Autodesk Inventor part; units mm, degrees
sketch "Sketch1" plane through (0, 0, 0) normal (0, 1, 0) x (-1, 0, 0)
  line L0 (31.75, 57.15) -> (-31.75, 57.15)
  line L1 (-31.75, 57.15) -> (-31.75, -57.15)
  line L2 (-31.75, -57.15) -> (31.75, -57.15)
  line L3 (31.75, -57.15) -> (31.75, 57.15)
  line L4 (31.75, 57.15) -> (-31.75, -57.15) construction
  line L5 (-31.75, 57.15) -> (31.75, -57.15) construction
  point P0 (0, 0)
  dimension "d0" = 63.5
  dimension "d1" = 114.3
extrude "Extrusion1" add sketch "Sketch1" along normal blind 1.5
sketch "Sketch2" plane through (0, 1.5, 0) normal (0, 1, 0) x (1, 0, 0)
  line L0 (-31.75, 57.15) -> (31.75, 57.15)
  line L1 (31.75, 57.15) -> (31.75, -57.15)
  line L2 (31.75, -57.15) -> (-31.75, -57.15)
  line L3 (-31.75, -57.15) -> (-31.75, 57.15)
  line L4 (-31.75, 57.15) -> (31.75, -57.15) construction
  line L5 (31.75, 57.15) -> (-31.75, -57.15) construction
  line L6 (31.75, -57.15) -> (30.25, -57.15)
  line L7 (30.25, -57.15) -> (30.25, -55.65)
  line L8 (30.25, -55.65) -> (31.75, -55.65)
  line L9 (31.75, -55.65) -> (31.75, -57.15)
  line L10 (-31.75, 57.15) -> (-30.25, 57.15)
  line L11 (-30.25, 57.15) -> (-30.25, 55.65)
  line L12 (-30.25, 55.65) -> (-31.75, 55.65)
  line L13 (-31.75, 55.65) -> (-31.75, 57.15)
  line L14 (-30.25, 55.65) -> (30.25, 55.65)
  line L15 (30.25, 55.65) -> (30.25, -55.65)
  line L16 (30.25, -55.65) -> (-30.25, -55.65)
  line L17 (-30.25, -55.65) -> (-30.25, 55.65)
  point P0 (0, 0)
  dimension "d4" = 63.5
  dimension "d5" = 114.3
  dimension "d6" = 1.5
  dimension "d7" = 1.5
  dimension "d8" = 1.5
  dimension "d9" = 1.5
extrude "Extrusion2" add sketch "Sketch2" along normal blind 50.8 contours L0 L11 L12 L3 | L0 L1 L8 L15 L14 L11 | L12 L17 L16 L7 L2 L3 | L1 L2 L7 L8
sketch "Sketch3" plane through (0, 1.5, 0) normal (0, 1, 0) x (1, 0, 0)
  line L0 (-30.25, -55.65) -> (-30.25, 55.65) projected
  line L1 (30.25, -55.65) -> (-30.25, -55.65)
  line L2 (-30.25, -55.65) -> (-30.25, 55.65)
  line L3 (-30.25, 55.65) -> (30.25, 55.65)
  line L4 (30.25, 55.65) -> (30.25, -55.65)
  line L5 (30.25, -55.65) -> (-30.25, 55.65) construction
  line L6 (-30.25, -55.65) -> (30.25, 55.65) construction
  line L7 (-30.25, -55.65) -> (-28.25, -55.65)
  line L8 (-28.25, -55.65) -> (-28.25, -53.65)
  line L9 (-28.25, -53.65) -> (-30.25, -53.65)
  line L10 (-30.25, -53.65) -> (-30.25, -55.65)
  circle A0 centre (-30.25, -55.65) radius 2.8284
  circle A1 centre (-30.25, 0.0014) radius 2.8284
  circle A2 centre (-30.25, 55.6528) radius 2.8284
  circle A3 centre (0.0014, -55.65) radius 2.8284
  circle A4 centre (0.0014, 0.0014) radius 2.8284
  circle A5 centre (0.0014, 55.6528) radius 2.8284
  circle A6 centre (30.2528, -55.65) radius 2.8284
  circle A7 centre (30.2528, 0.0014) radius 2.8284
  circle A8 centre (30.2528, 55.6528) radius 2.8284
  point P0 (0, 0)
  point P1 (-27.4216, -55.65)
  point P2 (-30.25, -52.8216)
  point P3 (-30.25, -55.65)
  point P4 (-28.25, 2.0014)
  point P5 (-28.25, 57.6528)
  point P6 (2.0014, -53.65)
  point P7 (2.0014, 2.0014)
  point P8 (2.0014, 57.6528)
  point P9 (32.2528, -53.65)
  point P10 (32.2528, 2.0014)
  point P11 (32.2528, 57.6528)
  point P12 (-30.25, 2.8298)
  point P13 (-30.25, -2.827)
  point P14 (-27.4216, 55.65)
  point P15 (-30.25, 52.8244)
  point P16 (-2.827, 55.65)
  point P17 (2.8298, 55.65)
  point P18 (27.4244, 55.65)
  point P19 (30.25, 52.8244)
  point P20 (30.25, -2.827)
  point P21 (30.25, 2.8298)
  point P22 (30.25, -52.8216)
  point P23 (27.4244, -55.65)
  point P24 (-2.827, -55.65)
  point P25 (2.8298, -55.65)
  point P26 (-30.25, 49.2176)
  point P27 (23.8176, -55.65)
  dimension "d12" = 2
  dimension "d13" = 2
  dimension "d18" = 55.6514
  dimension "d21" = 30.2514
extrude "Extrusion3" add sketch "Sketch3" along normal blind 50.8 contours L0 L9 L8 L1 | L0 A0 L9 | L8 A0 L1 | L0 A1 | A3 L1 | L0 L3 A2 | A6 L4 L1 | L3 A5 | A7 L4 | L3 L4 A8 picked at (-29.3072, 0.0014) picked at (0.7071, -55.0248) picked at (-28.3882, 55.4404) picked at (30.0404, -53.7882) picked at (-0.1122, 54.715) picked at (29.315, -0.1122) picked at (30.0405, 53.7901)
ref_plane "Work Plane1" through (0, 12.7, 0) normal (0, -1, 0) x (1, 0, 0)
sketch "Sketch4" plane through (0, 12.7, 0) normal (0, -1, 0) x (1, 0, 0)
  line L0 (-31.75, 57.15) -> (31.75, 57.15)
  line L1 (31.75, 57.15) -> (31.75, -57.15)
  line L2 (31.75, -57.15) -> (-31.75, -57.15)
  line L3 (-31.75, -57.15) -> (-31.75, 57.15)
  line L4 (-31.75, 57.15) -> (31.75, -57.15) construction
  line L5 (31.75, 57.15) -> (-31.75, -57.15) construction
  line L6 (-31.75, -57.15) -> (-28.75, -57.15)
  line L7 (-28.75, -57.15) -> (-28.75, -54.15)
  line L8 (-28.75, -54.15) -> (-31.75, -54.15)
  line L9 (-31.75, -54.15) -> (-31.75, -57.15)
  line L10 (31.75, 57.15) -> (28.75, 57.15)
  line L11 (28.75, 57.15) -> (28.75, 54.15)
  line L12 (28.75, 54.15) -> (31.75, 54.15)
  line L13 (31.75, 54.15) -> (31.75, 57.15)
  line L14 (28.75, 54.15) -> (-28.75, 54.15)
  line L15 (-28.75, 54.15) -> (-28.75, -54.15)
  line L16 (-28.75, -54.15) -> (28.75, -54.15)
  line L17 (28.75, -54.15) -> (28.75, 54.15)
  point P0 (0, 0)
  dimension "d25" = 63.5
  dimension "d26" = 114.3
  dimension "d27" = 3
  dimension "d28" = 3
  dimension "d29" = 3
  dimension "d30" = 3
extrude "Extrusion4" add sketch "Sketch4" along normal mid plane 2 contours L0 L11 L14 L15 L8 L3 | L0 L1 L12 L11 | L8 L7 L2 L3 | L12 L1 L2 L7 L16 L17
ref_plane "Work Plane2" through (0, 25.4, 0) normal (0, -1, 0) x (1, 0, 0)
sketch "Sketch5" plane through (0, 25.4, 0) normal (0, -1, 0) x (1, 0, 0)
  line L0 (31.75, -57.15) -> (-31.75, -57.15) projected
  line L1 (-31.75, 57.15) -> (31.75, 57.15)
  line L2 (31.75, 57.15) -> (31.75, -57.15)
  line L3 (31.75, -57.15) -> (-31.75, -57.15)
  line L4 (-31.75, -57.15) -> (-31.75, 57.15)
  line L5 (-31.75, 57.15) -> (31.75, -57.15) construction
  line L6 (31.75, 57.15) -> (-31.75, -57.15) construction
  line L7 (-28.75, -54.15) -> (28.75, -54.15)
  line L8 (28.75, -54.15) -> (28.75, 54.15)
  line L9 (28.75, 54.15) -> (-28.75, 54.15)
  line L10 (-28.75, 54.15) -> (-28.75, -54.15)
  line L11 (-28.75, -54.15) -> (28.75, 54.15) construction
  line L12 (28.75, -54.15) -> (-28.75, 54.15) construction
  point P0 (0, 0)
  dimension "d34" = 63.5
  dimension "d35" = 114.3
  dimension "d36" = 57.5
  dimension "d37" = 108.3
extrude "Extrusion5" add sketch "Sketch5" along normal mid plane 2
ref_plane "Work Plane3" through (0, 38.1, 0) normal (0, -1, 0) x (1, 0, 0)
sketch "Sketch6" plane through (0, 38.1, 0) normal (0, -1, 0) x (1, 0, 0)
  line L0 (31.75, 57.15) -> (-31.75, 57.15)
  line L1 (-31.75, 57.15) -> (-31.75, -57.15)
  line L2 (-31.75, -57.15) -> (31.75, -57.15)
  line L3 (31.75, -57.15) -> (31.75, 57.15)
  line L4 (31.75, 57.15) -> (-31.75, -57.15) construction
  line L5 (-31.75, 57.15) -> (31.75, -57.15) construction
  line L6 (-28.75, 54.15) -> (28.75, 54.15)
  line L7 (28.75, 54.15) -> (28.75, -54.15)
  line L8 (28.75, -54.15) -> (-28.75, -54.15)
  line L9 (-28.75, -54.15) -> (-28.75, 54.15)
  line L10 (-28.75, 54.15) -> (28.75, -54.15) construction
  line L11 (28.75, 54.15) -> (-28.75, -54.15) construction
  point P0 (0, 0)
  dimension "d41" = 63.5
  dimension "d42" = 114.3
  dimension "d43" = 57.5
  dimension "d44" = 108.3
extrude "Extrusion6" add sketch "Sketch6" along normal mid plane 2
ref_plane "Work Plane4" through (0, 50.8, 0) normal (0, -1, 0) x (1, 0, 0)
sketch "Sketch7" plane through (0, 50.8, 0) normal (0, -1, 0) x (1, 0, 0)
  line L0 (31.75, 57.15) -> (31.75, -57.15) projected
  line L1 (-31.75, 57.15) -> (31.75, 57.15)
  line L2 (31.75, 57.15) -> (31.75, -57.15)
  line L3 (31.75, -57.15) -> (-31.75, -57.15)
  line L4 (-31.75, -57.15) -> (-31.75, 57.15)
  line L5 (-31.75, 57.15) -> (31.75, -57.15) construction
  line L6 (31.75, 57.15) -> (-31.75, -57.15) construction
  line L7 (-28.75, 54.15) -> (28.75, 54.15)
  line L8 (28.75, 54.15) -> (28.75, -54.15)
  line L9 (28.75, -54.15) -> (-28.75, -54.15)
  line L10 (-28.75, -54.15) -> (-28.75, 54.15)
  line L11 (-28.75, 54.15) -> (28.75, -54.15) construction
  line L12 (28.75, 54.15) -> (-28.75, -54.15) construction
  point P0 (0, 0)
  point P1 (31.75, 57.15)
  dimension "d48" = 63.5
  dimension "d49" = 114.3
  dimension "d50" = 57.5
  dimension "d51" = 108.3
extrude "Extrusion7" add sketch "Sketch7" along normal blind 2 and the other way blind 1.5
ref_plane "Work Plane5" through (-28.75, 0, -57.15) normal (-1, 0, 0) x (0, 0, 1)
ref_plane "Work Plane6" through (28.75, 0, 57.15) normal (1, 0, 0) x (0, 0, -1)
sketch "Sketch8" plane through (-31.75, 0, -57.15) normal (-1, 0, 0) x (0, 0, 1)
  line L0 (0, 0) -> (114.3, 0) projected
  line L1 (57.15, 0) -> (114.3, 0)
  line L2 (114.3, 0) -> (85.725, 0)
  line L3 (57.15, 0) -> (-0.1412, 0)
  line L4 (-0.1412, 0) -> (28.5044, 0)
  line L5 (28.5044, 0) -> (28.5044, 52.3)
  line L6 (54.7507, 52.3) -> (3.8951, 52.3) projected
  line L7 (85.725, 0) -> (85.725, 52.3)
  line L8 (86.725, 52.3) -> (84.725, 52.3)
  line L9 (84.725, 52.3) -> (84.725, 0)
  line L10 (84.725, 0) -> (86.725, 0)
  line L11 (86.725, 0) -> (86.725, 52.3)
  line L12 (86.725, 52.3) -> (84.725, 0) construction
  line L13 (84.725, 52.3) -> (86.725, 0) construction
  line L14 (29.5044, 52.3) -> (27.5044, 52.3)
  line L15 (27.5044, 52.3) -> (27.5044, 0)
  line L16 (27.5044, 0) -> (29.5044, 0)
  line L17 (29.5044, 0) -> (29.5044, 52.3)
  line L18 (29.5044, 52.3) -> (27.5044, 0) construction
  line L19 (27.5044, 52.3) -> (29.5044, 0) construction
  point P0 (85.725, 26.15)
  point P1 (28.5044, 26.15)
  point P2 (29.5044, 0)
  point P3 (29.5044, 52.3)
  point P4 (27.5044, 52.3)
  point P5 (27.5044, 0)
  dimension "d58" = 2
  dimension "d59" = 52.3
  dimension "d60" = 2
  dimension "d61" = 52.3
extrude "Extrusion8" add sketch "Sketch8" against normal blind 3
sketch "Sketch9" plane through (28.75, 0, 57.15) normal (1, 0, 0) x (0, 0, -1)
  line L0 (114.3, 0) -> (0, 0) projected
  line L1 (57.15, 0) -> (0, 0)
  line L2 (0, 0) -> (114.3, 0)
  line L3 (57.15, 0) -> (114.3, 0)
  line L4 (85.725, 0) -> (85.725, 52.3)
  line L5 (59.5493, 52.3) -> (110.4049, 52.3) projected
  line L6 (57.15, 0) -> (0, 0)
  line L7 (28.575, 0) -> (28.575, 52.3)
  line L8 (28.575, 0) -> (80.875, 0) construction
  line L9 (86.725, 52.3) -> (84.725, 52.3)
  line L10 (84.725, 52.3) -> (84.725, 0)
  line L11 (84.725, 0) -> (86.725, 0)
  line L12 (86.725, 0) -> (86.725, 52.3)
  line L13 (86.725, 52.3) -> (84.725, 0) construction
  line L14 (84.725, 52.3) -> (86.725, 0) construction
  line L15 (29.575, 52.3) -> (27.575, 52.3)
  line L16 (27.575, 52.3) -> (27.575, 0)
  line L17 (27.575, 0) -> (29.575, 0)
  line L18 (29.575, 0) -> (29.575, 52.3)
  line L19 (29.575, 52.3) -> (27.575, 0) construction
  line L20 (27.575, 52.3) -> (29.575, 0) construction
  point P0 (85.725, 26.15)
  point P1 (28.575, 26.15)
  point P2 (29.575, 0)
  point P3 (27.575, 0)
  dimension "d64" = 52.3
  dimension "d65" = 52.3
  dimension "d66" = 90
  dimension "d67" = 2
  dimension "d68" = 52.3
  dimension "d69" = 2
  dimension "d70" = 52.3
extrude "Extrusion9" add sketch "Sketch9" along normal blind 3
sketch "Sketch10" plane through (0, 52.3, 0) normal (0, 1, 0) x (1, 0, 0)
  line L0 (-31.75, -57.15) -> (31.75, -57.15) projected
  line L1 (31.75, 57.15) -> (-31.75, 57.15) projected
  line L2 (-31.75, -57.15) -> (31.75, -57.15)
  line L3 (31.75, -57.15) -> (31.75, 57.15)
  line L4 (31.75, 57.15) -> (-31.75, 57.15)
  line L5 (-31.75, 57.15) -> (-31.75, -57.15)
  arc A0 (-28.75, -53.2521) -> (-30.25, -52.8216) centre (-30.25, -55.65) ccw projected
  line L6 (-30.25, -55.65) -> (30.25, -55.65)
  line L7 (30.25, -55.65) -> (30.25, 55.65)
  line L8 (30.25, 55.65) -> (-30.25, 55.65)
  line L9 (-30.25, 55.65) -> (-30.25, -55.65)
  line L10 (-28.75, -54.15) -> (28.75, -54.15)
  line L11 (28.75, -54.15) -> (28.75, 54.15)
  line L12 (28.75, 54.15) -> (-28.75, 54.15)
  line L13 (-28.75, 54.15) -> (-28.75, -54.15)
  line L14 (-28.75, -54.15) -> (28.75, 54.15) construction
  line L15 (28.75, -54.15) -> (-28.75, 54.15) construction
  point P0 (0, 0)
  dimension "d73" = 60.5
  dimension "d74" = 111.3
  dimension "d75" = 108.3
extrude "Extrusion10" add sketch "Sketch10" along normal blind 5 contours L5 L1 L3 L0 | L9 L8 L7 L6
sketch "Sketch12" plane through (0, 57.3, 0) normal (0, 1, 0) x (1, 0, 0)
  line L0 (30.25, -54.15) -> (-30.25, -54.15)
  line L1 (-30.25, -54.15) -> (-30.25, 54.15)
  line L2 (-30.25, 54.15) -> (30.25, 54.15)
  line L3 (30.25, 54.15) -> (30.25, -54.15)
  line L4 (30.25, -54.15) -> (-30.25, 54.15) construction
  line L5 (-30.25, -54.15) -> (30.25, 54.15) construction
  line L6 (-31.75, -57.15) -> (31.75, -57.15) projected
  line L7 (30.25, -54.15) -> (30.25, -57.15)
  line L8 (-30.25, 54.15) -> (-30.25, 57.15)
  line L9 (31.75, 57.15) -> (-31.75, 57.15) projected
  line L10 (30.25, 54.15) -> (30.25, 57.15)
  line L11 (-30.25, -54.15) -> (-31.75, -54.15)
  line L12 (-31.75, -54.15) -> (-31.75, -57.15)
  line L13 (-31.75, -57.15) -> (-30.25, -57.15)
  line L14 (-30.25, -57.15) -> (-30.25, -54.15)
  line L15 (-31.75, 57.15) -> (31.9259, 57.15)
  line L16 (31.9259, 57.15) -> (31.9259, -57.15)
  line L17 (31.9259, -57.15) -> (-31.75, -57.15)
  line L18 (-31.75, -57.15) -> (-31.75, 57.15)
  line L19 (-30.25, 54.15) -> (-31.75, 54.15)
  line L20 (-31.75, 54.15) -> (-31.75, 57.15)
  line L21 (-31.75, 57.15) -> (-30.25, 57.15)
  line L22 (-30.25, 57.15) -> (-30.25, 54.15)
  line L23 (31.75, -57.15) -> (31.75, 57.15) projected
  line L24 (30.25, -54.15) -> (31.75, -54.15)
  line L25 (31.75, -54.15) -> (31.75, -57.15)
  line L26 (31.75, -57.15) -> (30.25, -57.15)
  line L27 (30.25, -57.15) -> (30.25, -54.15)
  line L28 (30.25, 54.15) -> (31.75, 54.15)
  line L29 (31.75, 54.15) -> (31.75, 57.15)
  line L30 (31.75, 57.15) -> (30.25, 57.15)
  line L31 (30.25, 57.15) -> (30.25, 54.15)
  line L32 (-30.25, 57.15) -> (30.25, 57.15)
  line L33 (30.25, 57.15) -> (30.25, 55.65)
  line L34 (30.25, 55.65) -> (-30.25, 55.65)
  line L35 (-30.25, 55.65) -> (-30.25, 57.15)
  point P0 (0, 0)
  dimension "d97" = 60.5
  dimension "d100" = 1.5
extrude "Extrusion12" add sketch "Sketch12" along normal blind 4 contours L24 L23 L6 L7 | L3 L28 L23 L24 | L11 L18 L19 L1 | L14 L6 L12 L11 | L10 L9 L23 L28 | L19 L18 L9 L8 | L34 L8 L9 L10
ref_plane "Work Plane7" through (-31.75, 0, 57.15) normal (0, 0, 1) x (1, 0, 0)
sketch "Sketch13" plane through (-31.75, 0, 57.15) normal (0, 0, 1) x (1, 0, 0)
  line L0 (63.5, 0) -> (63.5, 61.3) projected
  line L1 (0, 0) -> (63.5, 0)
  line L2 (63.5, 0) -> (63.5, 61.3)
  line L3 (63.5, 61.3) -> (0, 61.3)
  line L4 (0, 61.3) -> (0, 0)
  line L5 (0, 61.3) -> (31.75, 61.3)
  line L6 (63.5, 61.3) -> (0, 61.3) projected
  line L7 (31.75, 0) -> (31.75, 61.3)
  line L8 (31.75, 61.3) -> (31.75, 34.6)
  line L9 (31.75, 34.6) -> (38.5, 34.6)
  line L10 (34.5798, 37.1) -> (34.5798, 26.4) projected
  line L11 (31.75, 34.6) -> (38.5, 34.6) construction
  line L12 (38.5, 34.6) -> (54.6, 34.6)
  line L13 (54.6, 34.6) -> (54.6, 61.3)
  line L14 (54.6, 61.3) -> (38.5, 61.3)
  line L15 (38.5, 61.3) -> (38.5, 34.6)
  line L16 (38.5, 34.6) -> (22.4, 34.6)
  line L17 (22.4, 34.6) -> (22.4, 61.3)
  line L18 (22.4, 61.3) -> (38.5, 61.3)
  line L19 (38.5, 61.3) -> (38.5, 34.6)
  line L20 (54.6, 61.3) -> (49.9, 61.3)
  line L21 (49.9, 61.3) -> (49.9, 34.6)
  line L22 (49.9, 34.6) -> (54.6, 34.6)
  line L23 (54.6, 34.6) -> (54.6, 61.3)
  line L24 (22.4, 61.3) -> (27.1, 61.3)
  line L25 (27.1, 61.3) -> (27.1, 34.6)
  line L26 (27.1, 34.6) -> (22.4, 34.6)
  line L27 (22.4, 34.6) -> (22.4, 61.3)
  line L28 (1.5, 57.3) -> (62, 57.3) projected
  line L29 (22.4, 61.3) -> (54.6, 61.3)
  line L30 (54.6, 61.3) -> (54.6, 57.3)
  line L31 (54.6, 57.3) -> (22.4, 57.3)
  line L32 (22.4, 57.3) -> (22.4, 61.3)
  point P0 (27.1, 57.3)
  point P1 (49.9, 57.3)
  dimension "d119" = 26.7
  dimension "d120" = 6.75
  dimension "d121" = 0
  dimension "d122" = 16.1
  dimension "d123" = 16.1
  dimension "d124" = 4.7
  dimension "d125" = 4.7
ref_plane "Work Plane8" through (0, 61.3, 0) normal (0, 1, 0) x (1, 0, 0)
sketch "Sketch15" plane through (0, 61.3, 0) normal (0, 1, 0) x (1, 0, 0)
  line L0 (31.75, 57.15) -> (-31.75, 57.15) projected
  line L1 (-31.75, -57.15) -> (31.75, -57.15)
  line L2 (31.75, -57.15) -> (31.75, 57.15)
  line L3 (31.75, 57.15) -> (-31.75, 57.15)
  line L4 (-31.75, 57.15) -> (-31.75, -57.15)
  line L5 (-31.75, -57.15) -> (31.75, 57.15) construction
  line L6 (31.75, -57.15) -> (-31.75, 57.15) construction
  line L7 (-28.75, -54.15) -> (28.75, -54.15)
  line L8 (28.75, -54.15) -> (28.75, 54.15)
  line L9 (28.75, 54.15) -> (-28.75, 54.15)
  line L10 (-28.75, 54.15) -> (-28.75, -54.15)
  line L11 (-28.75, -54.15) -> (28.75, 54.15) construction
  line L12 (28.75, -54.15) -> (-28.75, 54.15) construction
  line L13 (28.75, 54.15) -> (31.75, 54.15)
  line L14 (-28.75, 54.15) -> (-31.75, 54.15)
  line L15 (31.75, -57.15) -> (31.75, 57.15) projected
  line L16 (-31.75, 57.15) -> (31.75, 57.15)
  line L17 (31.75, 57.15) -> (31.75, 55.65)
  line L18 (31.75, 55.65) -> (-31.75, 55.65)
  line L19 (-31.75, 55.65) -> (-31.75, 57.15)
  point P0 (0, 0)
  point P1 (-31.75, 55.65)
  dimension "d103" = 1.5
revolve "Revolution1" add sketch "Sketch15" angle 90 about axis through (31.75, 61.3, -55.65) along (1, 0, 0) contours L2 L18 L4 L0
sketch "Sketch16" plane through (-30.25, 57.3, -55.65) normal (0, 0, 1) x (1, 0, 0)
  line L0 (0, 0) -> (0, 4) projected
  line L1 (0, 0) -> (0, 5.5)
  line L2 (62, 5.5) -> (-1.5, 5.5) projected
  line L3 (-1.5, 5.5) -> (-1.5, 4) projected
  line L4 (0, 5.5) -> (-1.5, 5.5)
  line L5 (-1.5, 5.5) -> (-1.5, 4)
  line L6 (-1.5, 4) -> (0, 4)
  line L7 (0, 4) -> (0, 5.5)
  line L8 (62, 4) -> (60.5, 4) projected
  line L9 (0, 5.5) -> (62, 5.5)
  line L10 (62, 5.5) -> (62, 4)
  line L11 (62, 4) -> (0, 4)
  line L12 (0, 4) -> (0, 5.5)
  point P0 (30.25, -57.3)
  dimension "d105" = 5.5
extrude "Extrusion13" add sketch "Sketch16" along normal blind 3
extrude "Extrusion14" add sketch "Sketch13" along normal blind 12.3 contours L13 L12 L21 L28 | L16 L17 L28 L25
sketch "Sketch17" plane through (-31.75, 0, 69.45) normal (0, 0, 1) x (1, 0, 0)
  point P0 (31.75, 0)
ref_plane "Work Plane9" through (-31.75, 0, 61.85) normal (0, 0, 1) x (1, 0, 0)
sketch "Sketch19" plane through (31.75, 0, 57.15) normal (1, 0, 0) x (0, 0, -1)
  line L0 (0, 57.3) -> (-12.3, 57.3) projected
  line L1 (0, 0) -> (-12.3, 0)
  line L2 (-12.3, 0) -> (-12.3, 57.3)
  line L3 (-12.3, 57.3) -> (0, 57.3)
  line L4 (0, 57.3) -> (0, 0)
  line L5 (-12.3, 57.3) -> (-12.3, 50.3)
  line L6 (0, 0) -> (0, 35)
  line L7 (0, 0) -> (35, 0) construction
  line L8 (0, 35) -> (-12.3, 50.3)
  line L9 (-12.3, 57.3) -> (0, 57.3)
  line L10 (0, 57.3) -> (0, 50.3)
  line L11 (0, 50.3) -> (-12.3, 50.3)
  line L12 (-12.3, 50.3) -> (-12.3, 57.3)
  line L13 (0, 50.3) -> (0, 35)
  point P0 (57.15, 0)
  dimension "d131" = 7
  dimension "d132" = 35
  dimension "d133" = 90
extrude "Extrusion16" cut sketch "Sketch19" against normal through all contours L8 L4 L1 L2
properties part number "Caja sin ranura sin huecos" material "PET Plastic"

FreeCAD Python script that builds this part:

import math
import FreeCAD as App
import Part
import Sketcher
from FreeCAD import Vector

doc = App.newDocument("Part")
body = doc.addObject("PartDesign::Body", "Body")

sketch1 = body.newObject("Sketcher::SketchObject", "Sketch")
sketch1.AttachmentSupport = (doc.getObject("XZ_Plane"), [""])
sketch1.MapMode = "FlatFace"
sketch1.addGeometry([
    Part.LineSegment(Vector(-31.75, -57.15, 0), Vector(-31.75, 57.15, 0)),
    Part.LineSegment(Vector(-31.75, 57.15, 0), Vector(31.75, 57.15, 0)),
    Part.LineSegment(Vector(31.75, 57.15, 0), Vector(31.75, -57.15, 0)),
    Part.LineSegment(Vector(31.75, -57.15, 0), Vector(-31.75, -57.15, 0)),
], False)
sketch1.addConstraint([
    Sketcher.Constraint("Coincident", 0, 2, 1, 1),
    Sketcher.Constraint("Coincident", 1, 2, 2, 1),
    Sketcher.Constraint("Coincident", 2, 2, 3, 1),
    Sketcher.Constraint("Coincident", 3, 2, 0, 1),
    Sketcher.Constraint("Vertical", 0),
    Sketcher.Constraint("Horizontal", 1),
    Sketcher.Constraint("Vertical", 2),
    Sketcher.Constraint("Horizontal", 3),
    Sketcher.Constraint("Symmetric", 0, 2, 2, 2, -1, 1),
    Sketcher.Constraint("DistanceX", 1, 1, 1, 2, 63.5),
    Sketcher.Constraint("DistanceY", 0, 1, 0, 2, 114.3),
])
pad1 = body.newObject("PartDesign::Pad", "Pad")
pad1.Profile = sketch1
pad1.Length = 1.5
pad1.Reversed = True

sketch2 = body.newObject("Sketcher::SketchObject", "Sketch001")
sketch2.AttachmentSupport = (doc.getObject("XZ_Plane"), [""])
sketch2.MapMode = "FlatFace"
sketch2.AttachmentOffset = App.Placement(Vector(0, 0, -1.5), App.Rotation())
sketch2.addGeometry([
    Part.LineSegment(Vector(-31.75, -57.15, 0), Vector(-31.75, 57.15, 0)),
    Part.LineSegment(Vector(-31.75, 57.15, 0), Vector(31.75, 57.15, 0)),
    Part.LineSegment(Vector(31.75, 57.15, 0), Vector(31.75, -57.15, 0)),
    Part.LineSegment(Vector(31.75, -57.15, 0), Vector(-31.75, -57.15, 0)),
    Part.LineSegment(Vector(30.25, -55.65, 0), Vector(30.25, 55.65, 0)),
    Part.LineSegment(Vector(30.25, 55.65, 0), Vector(-30.25, 55.65, 0)),
    Part.LineSegment(Vector(-30.25, 55.65, 0), Vector(-30.25, -55.65, 0)),
    Part.LineSegment(Vector(-30.25, -55.65, 0), Vector(30.25, -55.65, 0)),
], False)
sketch2.addConstraint([
    Sketcher.Constraint("Coincident", 0, 2, 1, 1),
    Sketcher.Constraint("Coincident", 1, 2, 2, 1),
    Sketcher.Constraint("Coincident", 2, 2, 3, 1),
    Sketcher.Constraint("Coincident", 3, 2, 0, 1),
    Sketcher.Constraint("Coincident", 4, 2, 5, 1),
    Sketcher.Constraint("Coincident", 5, 2, 6, 1),
    Sketcher.Constraint("Coincident", 6, 2, 7, 1),
    Sketcher.Constraint("Coincident", 7, 2, 4, 1),
    Sketcher.Constraint("Vertical", 0),
    Sketcher.Constraint("Horizontal", 1),
    Sketcher.Constraint("Vertical", 2),
    Sketcher.Constraint("Horizontal", 3),
    Sketcher.Constraint("Vertical", 4),
    Sketcher.Constraint("Horizontal", 5),
    Sketcher.Constraint("Vertical", 6),
    Sketcher.Constraint("Horizontal", 7),
    Sketcher.Constraint("Symmetric", 0, 2, 2, 2, -1, 1),
    Sketcher.Constraint("Symmetric", 4, 2, 6, 2, -1, 1),
    Sketcher.Constraint("DistanceX", 1, 1, 1, 2, 63.5),
    Sketcher.Constraint("DistanceY", 0, 1, 0, 2, 114.3),
    Sketcher.Constraint("DistanceX", 4, 2, 1, 2, 1.5),
    Sketcher.Constraint("DistanceY", 4, 2, 1, 2, 1.5),
])
pad2 = body.newObject("PartDesign::Pad", "Pad001")
pad2.Profile = sketch2
pad2.Length = 50.8
pad2.Reversed = True

sketch3 = body.newObject("Sketcher::SketchObject", "Sketch002")
sketch3.AttachmentSupport = (doc.getObject("XZ_Plane"), [""])
sketch3.MapMode = "FlatFace"
sketch3.AttachmentOffset = App.Placement(Vector(0, 0, -1.5), App.Rotation())
sketch3.addGeometry([
    Part.LineSegment(Vector(-30.25, 55.65, 0), Vector(-27.4216, 55.65, 0)),
    Part.ArcOfCircle(Part.Circle(Vector(-30.25, 55.65, 0), Vector(0, 0, 1), 2.8284), math.radians(-90), math.radians(0)),
    Part.LineSegment(Vector(-30.25, 52.8216, 0), Vector(-30.25, 55.65, 0)),
    Part.LineSegment(Vector(-30.25, -2.8298, 0), Vector(-30.25, 2.827, 0)),
    Part.ArcOfCircle(Part.Circle(Vector(-30.25, -0.0014, 0), Vector(0, 0, 1), 2.8284), math.radians(-90), math.radians(90)),
    Part.ArcOfCircle(Part.Circle(Vector(0.0014, 55.65, 0), Vector(0, 0, 1), 2.8284), math.radians(180), math.radians(360)),
    Part.LineSegment(Vector(-2.827, 55.65, 0), Vector(2.8298, 55.65, 0)),
    Part.LineSegment(Vector(-30.25, -55.65, 0), Vector(-30.25, -52.8244, 0)),
    Part.ArcOfCircle(Part.Circle(Vector(-30.25, -55.6528, 0), Vector(0, 0, 1), 2.8284), math.radians(0.05672), math.radians(90)),
    Part.LineSegment(Vector(-27.421601, -55.65, 0), Vector(-30.25, -55.65, 0)),
    Part.ArcOfCircle(Part.Circle(Vector(30.2528, 55.65, 0), Vector(0, 0, 1), 2.8284), math.radians(180), math.radians(269.94328)),
    Part.LineSegment(Vector(27.4244, 55.65, 0), Vector(30.25, 55.65, 0)),
    Part.LineSegment(Vector(30.25, 55.65, 0), Vector(30.25, 52.821601, 0)),
    Part.LineSegment(Vector(2.829799, -55.65, 0), Vector(-2.826999, -55.65, 0)),
    Part.ArcOfCircle(Part.Circle(Vector(0.0014, -55.6528, 0), Vector(0, 0, 1), 2.8284), math.radians(0.05672), math.radians(179.94328)),
    Part.ArcOfCircle(Part.Circle(Vector(30.2528, -0.0014, 0), Vector(0, 0, 1), 2.8284), math.radians(90.05672), math.radians(269.94328)),
    Part.LineSegment(Vector(30.25, 2.826999, 0), Vector(30.25, -2.829799, 0)),
    Part.LineSegment(Vector(30.25, -55.65, 0), Vector(27.424401, -55.65, 0)),
    Part.ArcOfCircle(Part.Circle(Vector(30.2528, -55.6528, 0), Vector(0, 0, 1), 2.8284), math.radians(90.05672), math.radians(179.94328)),
    Part.LineSegment(Vector(30.25, -52.824401, 0), Vector(30.25, -55.65, 0)),
], False)
sketch3.addConstraint([
    Sketcher.Constraint("Coincident", 0, 2, 1, 2),
    Sketcher.Constraint("Coincident", 1, 1, 2, 1),
    Sketcher.Constraint("Coincident", 2, 2, 0, 1),
    Sketcher.Constraint("Coincident", 3, 1, 4, 1),
    Sketcher.Constraint("Coincident", 4, 2, 3, 2),
    Sketcher.Constraint("Coincident", 5, 1, 6, 1),
    Sketcher.Constraint("Coincident", 6, 2, 5, 2),
    Sketcher.Constraint("Coincident", 7, 2, 8, 2),
    Sketcher.Constraint("Coincident", 8, 1, 9, 1),
    Sketcher.Constraint("Coincident", 9, 2, 7, 1),
    Sketcher.Constraint("Coincident", 10, 1, 11, 1),
    Sketcher.Constraint("Coincident", 11, 2, 12, 1),
    Sketcher.Constraint("Coincident", 12, 2, 10, 2),
    Sketcher.Constraint("Coincident", 13, 1, 14, 1),
    Sketcher.Constraint("Coincident", 14, 2, 13, 2),
    Sketcher.Constraint("Coincident", 15, 1, 16, 1),
    Sketcher.Constraint("Coincident", 16, 2, 15, 2),
    Sketcher.Constraint("Coincident", 17, 2, 18, 2),
    Sketcher.Constraint("Coincident", 18, 1, 19, 1),
    Sketcher.Constraint("Coincident", 19, 2, 17, 1),
    Sketcher.Constraint("Horizontal", 0),
    Sketcher.Constraint("Vertical", 2),
    Sketcher.Constraint("Vertical", 3),
    Sketcher.Constraint("Horizontal", 6),
    Sketcher.Constraint("Vertical", 7),
    Sketcher.Constraint("Horizontal", 9),
    Sketcher.Constraint("Horizontal", 11),
    Sketcher.Constraint("Vertical", 12),
    Sketcher.Constraint("Horizontal", 13),
    Sketcher.Constraint("Vertical", 16),
    Sketcher.Constraint("Horizontal", 17),
    Sketcher.Constraint("Vertical", 19),
    Sketcher.Constraint("Coincident", 2, 2, 1, 3),
    Sketcher.Constraint("Equal", 1, 4),
    Sketcher.Constraint("Equal", 4, 5),
    Sketcher.Constraint("Equal", 5, 8),
    Sketcher.Constraint("Equal", 8, 10),
    Sketcher.Constraint("Equal", 10, 14),
    Sketcher.Constraint("Equal", 14, 15),
    Sketcher.Constraint("Equal", 15, 18),
    Sketcher.Constraint("Symmetric", 9, 2, 11, 2, -1, 1),
    Sketcher.Constraint("Symmetric", 2, 2, 19, 2, -1, 1),
    Sketcher.Constraint("Symmetric", 2, 2, 11, 2, -2),
    Sketcher.Constraint("Symmetric", 4, 2, 15, 1, -2),
    Sketcher.Constraint("Symmetric", 6, 2, 13, 1, -1),
    Sketcher.Constraint("Horizontal", 1, 3, 5, 3),
    Sketcher.Constraint("Horizontal", 5, 3, 10, 3),
    Sketcher.Constraint("Horizontal", 8, 3, 14, 3),
    Sketcher.Constraint("Horizontal", 14, 3, 18, 3),
    Sketcher.Constraint("Horizontal", 2, 2, 5, 1),
    Sketcher.Constraint("Vertical", 1, 3, 4, 3),
    Sketcher.Constraint("Vertical", 4, 3, 8, 3),
    Sketcher.Constraint("Vertical", 10, 3, 15, 3),
    Sketcher.Constraint("Vertical", 15, 3, 18, 3),
    Sketcher.Constraint("Vertical", 2, 2, 3, 1),
    Sketcher.Constraint("Equal", 17, 7),
    Sketcher.Constraint("Radius", 1, 2.8284),
    Sketcher.Constraint("DistanceY", 4, 3, 1, 3, 55.6514),
    Sketcher.Constraint("DistanceX", 1, 3, 5, 3, 30.2514),
    Sketcher.Constraint("DistanceY", 8, 3, 4, 3, 55.6514),
    Sketcher.Constraint("DistanceX", 5, 3, 10, 3, 30.2514),
    Sketcher.Constraint("DistanceX", 1, 3, -1, 1, 30.25),
])
pad3 = body.newObject("PartDesign::Pad", "Pad002")
pad3.Profile = sketch3
pad3.Length = 50.8
pad3.Reversed = True

sketch4 = body.newObject("Sketcher::SketchObject", "Sketch003")
sketch4.AttachmentSupport = (doc.getObject("XZ_Plane"), [""])
sketch4.MapMode = "FlatFace"
sketch4.AttachmentOffset = App.Placement(Vector(0, 0, -12.7), App.Rotation())
sketch4.addGeometry([
    Part.LineSegment(Vector(-31.75, 57.15, 0), Vector(-31.75, -57.15, 0)),
    Part.LineSegment(Vector(-31.75, -57.15, 0), Vector(31.75, -57.15, 0)),
    Part.LineSegment(Vector(31.75, -57.15, 0), Vector(31.75, 57.15, 0)),
    Part.LineSegment(Vector(31.75, 57.15, 0), Vector(-31.75, 57.15, 0)),
    Part.LineSegment(Vector(-28.75, 54.15, 0), Vector(28.75, 54.15, 0)),
    Part.LineSegment(Vector(28.75, 54.15, 0), Vector(28.75, -54.15, 0)),
    Part.LineSegment(Vector(28.75, -54.15, 0), Vector(-28.75, -54.15, 0)),
    Part.LineSegment(Vector(-28.75, -54.15, 0), Vector(-28.75, 54.15, 0)),
], False)
sketch4.addConstraint([
    Sketcher.Constraint("Coincident", 0, 2, 1, 1),
    Sketcher.Constraint("Coincident", 1, 2, 2, 1),
    Sketcher.Constraint("Coincident", 2, 2, 3, 1),
    Sketcher.Constraint("Coincident", 3, 2, 0, 1),
    Sketcher.Constraint("Coincident", 4, 2, 5, 1),
    Sketcher.Constraint("Coincident", 5, 2, 6, 1),
    Sketcher.Constraint("Coincident", 6, 2, 7, 1),
    Sketcher.Constraint("Coincident", 7, 2, 4, 1),
    Sketcher.Constraint("Vertical", 0),
    Sketcher.Constraint("Horizontal", 1),
    Sketcher.Constraint("Vertical", 2),
    Sketcher.Constraint("Horizontal", 3),
    Sketcher.Constraint("Horizontal", 4),
    Sketcher.Constraint("Vertical", 5),
    Sketcher.Constraint("Horizontal", 6),
    Sketcher.Constraint("Vertical", 7),
    Sketcher.Constraint("Symmetric", 0, 2, 2, 2, -1, 1),
    Sketcher.Constraint("Symmetric", 4, 2, 6, 2, -1, 1),
    Sketcher.Constraint("DistanceX", 1, 1, 1, 2, 63.5),
    Sketcher.Constraint("DistanceY", 0, 2, 0, 1, 114.3),
    Sketcher.Constraint("DistanceX", 4, 2, 2, 2, 3.0),
    Sketcher.Constraint("DistanceY", 4, 2, 2, 2, 3.0),
])
pad4 = body.newObject("PartDesign::Pad", "Pad003")
pad4.Profile = sketch4
pad4.Length = 2
pad4.Midplane = True

sketch5 = body.newObject("Sketcher::SketchObject", "Sketch004")
sketch5.AttachmentSupport = (doc.getObject("XZ_Plane"), [""])
sketch5.MapMode = "FlatFace"
sketch5.AttachmentOffset = App.Placement(Vector(0, 0, -25.4), App.Rotation())
sketch5.addGeometry([
    Part.LineSegment(Vector(-31.75, -57.15, 0), Vector(31.75, -57.15, 0)),
    Part.LineSegment(Vector(31.75, -57.15, 0), Vector(31.75, 57.15, 0)),
    Part.LineSegment(Vector(31.75, 57.15, 0), Vector(-31.75, 57.15, 0)),
    Part.LineSegment(Vector(-31.75, 57.15, 0), Vector(-31.75, -57.15, 0)),
    Part.LineSegment(Vector(28.75, -54.15, 0), Vector(-28.75, -54.15, 0)),
    Part.LineSegment(Vector(-28.75, -54.15, 0), Vector(-28.75, 54.15, 0)),
    Part.LineSegment(Vector(-28.75, 54.15, 0), Vector(28.75, 54.15, 0)),
    Part.LineSegment(Vector(28.75, 54.15, 0), Vector(28.75, -54.15, 0)),
], False)
sketch5.addConstraint([
    Sketcher.Constraint("Coincident", 0, 2, 1, 1),
    Sketcher.Constraint("Coincident", 1, 2, 2, 1),
    Sketcher.Constraint("Coincident", 2, 2, 3, 1),
    Sketcher.Constraint("Coincident", 3, 2, 0, 1),
    Sketcher.Constraint("Coincident", 4, 2, 5, 1),
    Sketcher.Constraint("Coincident", 5, 2, 6, 1),
    Sketcher.Constraint("Coincident", 6, 2, 7, 1),
    Sketcher.Constraint("Coincident", 7, 2, 4, 1),
    Sketcher.Constraint("Horizontal", 0),
    Sketcher.Constraint("Vertical", 1),
    Sketcher.Constraint("Horizontal", 2),
    Sketcher.Constraint("Vertical", 3),
    Sketcher.Constraint("Horizontal", 4),
    Sketcher.Constraint("Vertical", 5),
    Sketcher.Constraint("Horizontal", 6),
    Sketcher.Constraint("Vertical", 7),
    Sketcher.Constraint("Symmetric", 0, 2, 2, 2, -1, 1),
    Sketcher.Constraint("Symmetric", 4, 2, 6, 2, -1, 1),
    Sketcher.Constraint("DistanceX", 0, 1, 0, 2, 63.5),
    Sketcher.Constraint("DistanceX", 4, 2, 4, 1, 57.5),
    Sketcher.Constraint("DistanceY", 1, 1, 1, 2, 114.3),
    Sketcher.Constraint("DistanceY", 5, 1, 5, 2, 108.3),
])
pad5 = body.newObject("PartDesign::Pad", "Pad004")
pad5.Profile = sketch5
pad5.Length = 2
pad5.Midplane = True

sketch6 = body.newObject("Sketcher::SketchObject", "Sketch005")
sketch6.AttachmentSupport = (doc.getObject("XZ_Plane"), [""])
sketch6.MapMode = "FlatFace"
sketch6.AttachmentOffset = App.Placement(Vector(0, 0, -38.1), App.Rotation())
sketch6.addGeometry([
    Part.LineSegment(Vector(31.75, -57.15, 0), Vector(31.75, 57.15, 0)),
    Part.LineSegment(Vector(31.75, 57.15, 0), Vector(-31.75, 57.15, 0)),
    Part.LineSegment(Vector(-31.75, 57.15, 0), Vector(-31.75, -57.15, 0)),
    Part.LineSegment(Vector(-31.75, -57.15, 0), Vector(31.75, -57.15, 0)),
    Part.LineSegment(Vector(-28.75, -54.15, 0), Vector(-28.75, 54.15, 0)),
    Part.LineSegment(Vector(-28.75, 54.15, 0), Vector(28.75, 54.15, 0)),
    Part.LineSegment(Vector(28.75, 54.15, 0), Vector(28.75, -54.15, 0)),
    Part.LineSegment(Vector(28.75, -54.15, 0), Vector(-28.75, -54.15, 0)),
], False)
sketch6.addConstraint([
    Sketcher.Constraint("Coincident", 0, 2, 1, 1),
    Sketcher.Constraint("Coincident", 1, 2, 2, 1),
    Sketcher.Constraint("Coincident", 2, 2, 3, 1),
    Sketcher.Constraint("Coincident", 3, 2, 0, 1),
    Sketcher.Constraint("Coincident", 4, 2, 5, 1),
    Sketcher.Constraint("Coincident", 5, 2, 6, 1),
    Sketcher.Constraint("Coincident", 6, 2, 7, 1),
    Sketcher.Constraint("Coincident", 7, 2, 4, 1),
    Sketcher.Constraint("Vertical", 0),
    Sketcher.Constraint("Horizontal", 1),
    Sketcher.Constraint("Vertical", 2),
    Sketcher.Constraint("Horizontal", 3),
    Sketcher.Constraint("Vertical", 4),
    Sketcher.Constraint("Horizontal", 5),
    Sketcher.Constraint("Vertical", 6),
    Sketcher.Constraint("Horizontal", 7),
    Sketcher.Constraint("Symmetric", 0, 2, 2, 2, -1, 1),
    Sketcher.Constraint("Symmetric", 4, 2, 6, 2, -1, 1),
    Sketcher.Constraint("DistanceX", 1, 2, 1, 1, 63.5),
    Sketcher.Constraint("DistanceX", 5, 1, 5, 2, 57.5),
    Sketcher.Constraint("DistanceY", 0, 1, 0, 2, 114.3),
    Sketcher.Constraint("DistanceY", 4, 1, 4, 2, 108.3),
])
pad6 = body.newObject("PartDesign::Pad", "Pad005")
pad6.Profile = sketch6
pad6.Length = 2
pad6.Midplane = True

sketch7 = body.newObject("Sketcher::SketchObject", "Sketch006")
sketch7.AttachmentSupport = (doc.getObject("XZ_Plane"), [""])
sketch7.MapMode = "FlatFace"
sketch7.AttachmentOffset = App.Placement(Vector(0, 0, -50.8), App.Rotation())
sketch7.addGeometry([
    Part.LineSegment(Vector(31.75, -57.15, 0), Vector(31.75, 57.15, 0)),
    Part.LineSegment(Vector(31.75, 57.15, 0), Vector(-31.75, 57.15, 0)),
    Part.LineSegment(Vector(-31.75, 57.15, 0), Vector(-31.75, -57.15, 0)),
    Part.LineSegment(Vector(-31.75, -57.15, 0), Vector(31.75, -57.15, 0)),
    Part.LineSegment(Vector(-28.75, -54.15, 0), Vector(-28.75, 54.15, 0)),
    Part.LineSegment(Vector(-28.75, 54.15, 0), Vector(28.75, 54.15, 0)),
    Part.LineSegment(Vector(28.75, 54.15, 0), Vector(28.75, -54.15, 0)),
    Part.LineSegment(Vector(28.75, -54.15, 0), Vector(-28.75, -54.15, 0)),
], False)
sketch7.addConstraint([
    Sketcher.Constraint("Coincident", 0, 2, 1, 1),
    Sketcher.Constraint("Coincident", 1, 2, 2, 1),
    Sketcher.Constraint("Coincident", 2, 2, 3, 1),
    Sketcher.Constraint("Coincident", 3, 2, 0, 1),
    Sketcher.Constraint("Coincident", 4, 2, 5, 1),
    Sketcher.Constraint("Coincident", 5, 2, 6, 1),
    Sketcher.Constraint("Coincident", 6, 2, 7, 1),
    Sketcher.Constraint("Coincident", 7, 2, 4, 1),
    Sketcher.Constraint("Vertical", 0),
    Sketcher.Constraint("Horizontal", 1),
    Sketcher.Constraint("Vertical", 2),
    Sketcher.Constraint("Horizontal", 3),
    Sketcher.Constraint("Vertical", 4),
    Sketcher.Constraint("Horizontal", 5),
    Sketcher.Constraint("Vertical", 6),
    Sketcher.Constraint("Horizontal", 7),
    Sketcher.Constraint("Symmetric", 0, 2, 2, 2, -1, 1),
    Sketcher.Constraint("Symmetric", 4, 2, 6, 2, -1, 1),
    Sketcher.Constraint("DistanceX", 1, 2, 1, 1, 63.5),
    Sketcher.Constraint("DistanceX", 5, 1, 5, 2, 57.5),
    Sketcher.Constraint("DistanceY", 0, 1, 0, 2, 114.3),
    Sketcher.Constraint("DistanceY", 4, 1, 4, 2, 108.3),
])
pad7 = body.newObject("PartDesign::Pad", "Pad006")
pad7.Profile = sketch7
pad7.Type = "TwoLengths"
pad7.Length = 2
pad7.Length2 = 1.5

sketch8 = body.newObject("Sketcher::SketchObject", "Sketch007")
sketch8.AttachmentSupport = (doc.getObject("YZ_Plane"), [""])
sketch8.MapMode = "FlatFace"
sketch8.AttachmentOffset = App.Placement(Vector(0, 0, -31.75), App.Rotation())
sketch8.addGeometry([
    Part.LineSegment(Vector(52.3, -29.6456, 0), Vector(0, -29.6456, 0)),
    Part.LineSegment(Vector(0, -29.6456, 0), Vector(0, -27.6456, 0)),
    Part.LineSegment(Vector(0, -27.6456, 0), Vector(52.3, -27.6456, 0)),
    Part.LineSegment(Vector(52.3, -27.6456, 0), Vector(52.3, -29.6456, 0)),
    Part.LineSegment(Vector(52.3, 27.575, 0), Vector(0, 27.575, 0)),
    Part.LineSegment(Vector(0, 27.575, 0), Vector(0, 29.575, 0)),
    Part.LineSegment(Vector(0, 29.575, 0), Vector(52.3, 29.575, 0)),
    Part.LineSegment(Vector(52.3, 29.575, 0), Vector(52.3, 27.575, 0)),
], False)
sketch8.addConstraint([
    Sketcher.Constraint("Coincident", 0, 2, 1, 1),
    Sketcher.Constraint("Coincident", 1, 2, 2, 1),
    Sketcher.Constraint("Coincident", 2, 2, 3, 1),
    Sketcher.Constraint("Coincident", 3, 2, 0, 1),
    Sketcher.Constraint("Coincident", 4, 2, 5, 1),
    Sketcher.Constraint("Coincident", 5, 2, 6, 1),
    Sketcher.Constraint("Coincident", 6, 2, 7, 1),
    Sketcher.Constraint("Coincident", 7, 2, 4, 1),
    Sketcher.Constraint("Horizontal", 0),
    Sketcher.Constraint("Vertical", 1),
    Sketcher.Constraint("Horizontal", 2),
    Sketcher.Constraint("Vertical", 3),
    Sketcher.Constraint("Horizontal", 4),
    Sketcher.Constraint("Vertical", 5),
    Sketcher.Constraint("Horizontal", 6),
    Sketcher.Constraint("Vertical", 7),
    Sketcher.Constraint("PointOnObject", 0, 2, -2),
    Sketcher.Constraint("PointOnObject", 4, 2, -2),
    Sketcher.Constraint("Vertical", 3, 2, 6, 2),
    Sketcher.Constraint("Equal", 3, 5),
    Sketcher.Constraint("DistanceY", 1, 1, 1, 2, 2.0),
    Sketcher.Constraint("DistanceX", 0, 2, 0, 1, 52.3),
    Sketcher.Constraint("DistanceY", -1, 1, 4, 2, 27.575),
    Sketcher.Constraint("DistanceY", 0, 2, -1, 1, 29.6456),
])
pad8 = body.newObject("PartDesign::Pad", "Pad007")
pad8.Profile = sketch8
pad8.Length = 3

sketch9 = body.newObject("Sketcher::SketchObject", "Sketch008")
sketch9.AttachmentSupport = (doc.getObject("YZ_Plane"), [""])
sketch9.MapMode = "FlatFace"
sketch9.AttachmentOffset = App.Placement(Vector(0, 0, 28.75), App.Rotation())
sketch9.addGeometry([
    Part.LineSegment(Vector(0, 27.575, 0), Vector(52.3, 27.575, 0)),
    Part.LineSegment(Vector(52.3, 27.575, 0), Vector(52.3, 29.575, 0)),
    Part.LineSegment(Vector(52.3, 29.575, 0), Vector(0, 29.575, 0)),
    Part.LineSegment(Vector(0, 29.575, 0), Vector(0, 27.575, 0)),
    Part.LineSegment(Vector(0, -29.575, 0), Vector(52.3, -29.575, 0)),
    Part.LineSegment(Vector(52.3, -29.575, 0), Vector(52.3, -27.575, 0)),
    Part.LineSegment(Vector(52.3, -27.575, 0), Vector(0, -27.575, 0)),
    Part.LineSegment(Vector(0, -27.575, 0), Vector(0, -29.575, 0)),
], False)
sketch9.addConstraint([
    Sketcher.Constraint("Coincident", 0, 2, 1, 1),
    Sketcher.Constraint("Coincident", 1, 2, 2, 1),
    Sketcher.Constraint("Coincident", 2, 2, 3, 1),
    Sketcher.Constraint("Coincident", 3, 2, 0, 1),
    Sketcher.Constraint("Coincident", 4, 2, 5, 1),
    Sketcher.Constraint("Coincident", 5, 2, 6, 1),
    Sketcher.Constraint("Coincident", 6, 2, 7, 1),
    Sketcher.Constraint("Coincident", 7, 2, 4, 1),
    Sketcher.Constraint("Horizontal", 0),
    Sketcher.Constraint("Vertical", 1),
    Sketcher.Constraint("Horizontal", 2),
    Sketcher.Constraint("Vertical", 3),
    Sketcher.Constraint("Horizontal", 4),
    Sketcher.Constraint("Vertical", 5),
    Sketcher.Constraint("Horizontal", 6),
    Sketcher.Constraint("Vertical", 7),
    Sketcher.Constraint("Symmetric", 3, 2, 6, 2, -1, 1),
    Sketcher.Constraint("Symmetric", 1, 2, 4, 2, -1),
    Sketcher.Constraint("PointOnObject", 2, 2, -2),
    Sketcher.Constraint("DistanceY", 1, 1, 1, 2, 2.0),
    Sketcher.Constraint("DistanceX", 0, 1, 0, 2, 52.3),
    Sketcher.Constraint("DistanceY", 4, 2, 0, 2, 57.15),
])
pad9 = body.newObject("PartDesign::Pad", "Pad008")
pad9.Profile = sketch9
pad9.Length = 3

sketch10 = body.newObject("Sketcher::SketchObject", "Sketch009")
sketch10.AttachmentSupport = (doc.getObject("XZ_Plane"), [""])
sketch10.MapMode = "FlatFace"
sketch10.AttachmentOffset = App.Placement(Vector(0, 0, -52.3), App.Rotation())
sketch10.addGeometry([
    Part.LineSegment(Vector(-31.75, -57.15, 0), Vector(-31.75, 57.15, 0)),
    Part.LineSegment(Vector(-31.75, 57.15, 0), Vector(31.75, 57.15, 0)),
    Part.LineSegment(Vector(31.75, 57.15, 0), Vector(31.75, -57.15, 0)),
    Part.LineSegment(Vector(31.75, -57.15, 0), Vector(-31.75, -57.15, 0)),
    Part.LineSegment(Vector(28.75, 54.15, 0), Vector(-28.75, 54.15, 0)),
    Part.LineSegment(Vector(-28.75, 54.15, 0), Vector(-28.75, 53.2521, 0)),
    Part.LineSegment(Vector(-28.75, 53.2521, 0), Vector(-28.75, -54.15, 0)),
    Part.LineSegment(Vector(-28.75, -54.15, 0), Vector(28.75, -54.15, 0)),
    Part.LineSegment(Vector(28.75, -54.15, 0), Vector(28.75, 54.15, 0)),
], False)
sketch10.addConstraint([
    Sketcher.Constraint("Coincident", 0, 2, 1, 1),
    Sketcher.Constraint("Coincident", 1, 2, 2, 1),
    Sketcher.Constraint("Coincident", 2, 2, 3, 1),
    Sketcher.Constraint("Coincident", 3, 2, 0, 1),
    Sketcher.Constraint("Coincident", 4, 2, 5, 1),
    Sketcher.Constraint("Coincident", 5, 2, 6, 1),
    Sketcher.Constraint("Coincident", 6, 2, 7, 1),
    Sketcher.Constraint("Coincident", 7, 2, 8, 1),
    Sketcher.Constraint("Coincident", 8, 2, 4, 1),
    Sketcher.Constraint("Vertical", 0),
    Sketcher.Constraint("Horizontal", 1),
    Sketcher.Constraint("Vertical", 2),
    Sketcher.Constraint("Horizontal", 3),
    Sketcher.Constraint("Horizontal", 4),
    Sketcher.Constraint("Vertical", 5),
    Sketcher.Constraint("Vertical", 6),
    Sketcher.Constraint("Horizontal", 7),
    Sketcher.Constraint("Vertical", 8),
    Sketcher.Constraint("Symmetric", 0, 2, 2, 2, -1, 1),
    Sketcher.Constraint("Symmetric", 4, 2, 7, 2, -1, 1),
    Sketcher.Constraint("DistanceY", 8, 1, 8, 2, 108.3),
    Sketcher.Constraint("DistanceX", 4, 2, 1, 2, 60.5),
    Sketcher.Constraint("DistanceY", 3, 2, 4, 2, 111.3),
    Sketcher.Constraint("DistanceX", 1, 1, 1, 2, 63.5),
    Sketcher.Constraint("DistanceY", 5, 2, 5, 1, 0.898),
])
pad10 = body.newObject("PartDesign::Pad", "Pad009")
pad10.Profile = sketch10
pad10.Length = 5
pad10.Reversed = True

sketch11 = body.newObject("Sketcher::SketchObject", "Sketch010")
sketch11.AttachmentSupport = (doc.getObject("XZ_Plane"), [""])
sketch11.MapMode = "FlatFace"
sketch11.AttachmentOffset = App.Placement(Vector(0, 0, -57.3), App.Rotation())
sketch11.addGeometry([
    Part.LineSegment(Vector(31.75, 57.15, 0), Vector(31.75, -57.15, 0)),
    Part.LineSegment(Vector(31.75, -57.15, 0), Vector(-31.75, -57.15, 0)),
    Part.LineSegment(Vector(-31.75, -57.15, 0), Vector(-31.75, 57.15, 0)),
    Part.LineSegment(Vector(-31.75, 57.15, 0), Vector(-30.25, 57.15, 0)),
    Part.LineSegment(Vector(-30.25, 57.15, 0), Vector(-30.25, -55.65, 0)),
    Part.LineSegment(Vector(-30.25, -55.65, 0), Vector(30.25, -55.65, 0)),
    Part.LineSegment(Vector(30.25, -55.65, 0), Vector(30.25, 57.15, 0)),
    Part.LineSegment(Vector(30.25, 57.15, 0), Vector(31.75, 57.15, 0)),
], False)
sketch11.addConstraint([
    Sketcher.Constraint("Coincident", 0, 2, 1, 1),
    Sketcher.Constraint("Coincident", 1, 2, 2, 1),
    Sketcher.Constraint("Coincident", 2, 2, 3, 1),
    Sketcher.Constraint("Coincident", 3, 2, 4, 1),
    Sketcher.Constraint("Coincident", 4, 2, 5, 1),
    Sketcher.Constraint("Coincident", 5, 2, 6, 1),
    Sketcher.Constraint("Coincident", 6, 2, 7, 1),
    Sketcher.Constraint("Coincident", 7, 2, 0, 1),
    Sketcher.Constraint("Vertical", 0),
    Sketcher.Constraint("Horizontal", 1),
    Sketcher.Constraint("Vertical", 2),
    Sketcher.Constraint("Horizontal", 3),
    Sketcher.Constraint("Vertical", 4),
    Sketcher.Constraint("Horizontal", 5),
    Sketcher.Constraint("Vertical", 6),
    Sketcher.Constraint("Horizontal", 7),
    Sketcher.Constraint("Symmetric", 0, 2, 2, 2, -1, 1),
    Sketcher.Constraint("Symmetric", 3, 2, 6, 2, -2),
    Sketcher.Constraint("DistanceX", 3, 1, 3, 2, 1.5),
    Sketcher.Constraint("DistanceX", 5, 1, 5, 2, 60.5),
    Sketcher.Constraint("DistanceY", 1, 2, 4, 2, 1.5),
    Sketcher.Constraint("DistanceY", 0, 2, 0, 1, 114.3),
])
pad11 = body.newObject("PartDesign::Pad", "Pad010")
pad11.Profile = sketch11
pad11.Length = 4
pad11.Reversed = True

sketch12 = body.newObject("Sketcher::SketchObject", "Sketch011")
sketch12.AttachmentSupport = (doc.getObject("XZ_Plane"), [""])
sketch12.MapMode = "FlatFace"
sketch12.AttachmentOffset = App.Placement(Vector(0, 0, -61.3), App.Rotation())
sketch12.addGeometry([
    Part.LineSegment(Vector(31.75, -55.65, 0), Vector(31.75, -57.15, 0)),
    Part.LineSegment(Vector(31.75, -57.15, 0), Vector(-31.75, -57.15, 0)),
    Part.LineSegment(Vector(-31.75, -57.15, 0), Vector(-31.75, -55.65, 0)),
    Part.LineSegment(Vector(-31.75, -55.65, 0), Vector(31.75, -55.65, 0)),
], False)
sketch12.addGeometry(Part.LineSegment(Vector(-31.75, -55.65, 0), Vector(31.75, -55.65, 0)), True)
sketch12.addConstraint([
    Sketcher.Constraint("Coincident", 0, 2, 1, 1),
    Sketcher.Constraint("Coincident", 1, 2, 2, 1),
    Sketcher.Constraint("Coincident", 2, 2, 3, 1),
    Sketcher.Constraint("Coincident", 3, 2, 0, 1),
    Sketcher.Constraint("Vertical", 0),
    Sketcher.Constraint("Horizontal", 1),
    Sketcher.Constraint("Vertical", 2),
    Sketcher.Constraint("Horizontal", 3),
    Sketcher.Constraint("Horizontal", 4),
    Sketcher.Constraint("Coincident", 4, 1, 2, 2),
    Sketcher.Constraint("Vertical", 0, 2, 4, 2),
    Sketcher.Constraint("DistanceY", 0, 2, 0, 1, 1.5),
    Sketcher.Constraint("DistanceX", 1, 2, 1, 1, 63.5),
    Sketcher.Constraint("DistanceX", -1, 1, 0, 2, 31.75),
    Sketcher.Constraint("DistanceY", 0, 2, -1, 1, 57.15),
])
revolution = body.newObject("PartDesign::Revolution", "Revolution")
revolution.Profile = sketch12
revolution.ReferenceAxis = (sketch12, ["Axis0"])
revolution.Angle = 90

sketch13 = body.newObject("Sketcher::SketchObject", "Sketch012")
sketch13.AttachmentSupport = (doc.getObject("XY_Plane"), [""])
sketch13.MapMode = "FlatFace"
sketch13.AttachmentOffset = App.Placement(Vector(0, 0, -55.65), App.Rotation())
sketch13.addGeometry([
    Part.LineSegment(Vector(-31.75, 61.3, 0), Vector(31.75, 61.3, 0)),
    Part.LineSegment(Vector(31.75, 61.3, 0), Vector(31.75, 62.8, 0)),
    Part.LineSegment(Vector(31.75, 62.8, 0), Vector(-31.75, 62.8, 0)),
    Part.LineSegment(Vector(-31.75, 62.8, 0), Vector(-31.75, 61.3, 0)),
], False)
sketch13.addConstraint([
    Sketcher.Constraint("Coincident", 0, 2, 1, 1),
    Sketcher.Constraint("Coincident", 1, 2, 2, 1),
    Sketcher.Constraint("Coincident", 2, 2, 3, 1),
    Sketcher.Constraint("Coincident", 3, 2, 0, 1),
    Sketcher.Constraint("Horizontal", 0),
    Sketcher.Constraint("Vertical", 1),
    Sketcher.Constraint("Horizontal", 2),
    Sketcher.Constraint("Vertical", 3),
    Sketcher.Constraint("DistanceX", 0, 1, 0, 2, 63.5),
    Sketcher.Constraint("DistanceY", 1, 1, 1, 2, 1.5),
    Sketcher.Constraint("DistanceY", -1, 1, 0, 2, 61.3),
    Sketcher.Constraint("DistanceX", -1, 1, 0, 2, 31.75),
])
pad12 = body.newObject("PartDesign::Pad", "Pad011")
pad12.Profile = sketch13
pad12.Length = 3

sketch14 = body.newObject("Sketcher::SketchObject", "Sketch013")
sketch14.AttachmentSupport = (doc.getObject("XY_Plane"), [""])
sketch14.MapMode = "FlatFace"
sketch14.AttachmentOffset = App.Placement(Vector(0, 0, 57.15), App.Rotation())
sketch14.addGeometry([
    Part.LineSegment(Vector(22.85, 34.6, 0), Vector(22.85, 57.3, 0)),
    Part.LineSegment(Vector(22.85, 57.3, 0), Vector(18.15, 57.3, 0)),
    Part.LineSegment(Vector(18.15, 57.3, 0), Vector(18.15, 34.6, 0)),
    Part.LineSegment(Vector(18.15, 34.6, 0), Vector(22.85, 34.6, 0)),
    Part.LineSegment(Vector(-9.35, 34.6, 0), Vector(-4.65, 34.6, 0)),
    Part.LineSegment(Vector(-4.65, 34.6, 0), Vector(-4.65, 57.3, 0)),
    Part.LineSegment(Vector(-4.65, 57.3, 0), Vector(-9.35, 57.3, 0)),
    Part.LineSegment(Vector(-9.35, 57.3, 0), Vector(-9.35, 34.6, 0)),
], False)
sketch14.addConstraint([
    Sketcher.Constraint("Coincident", 0, 2, 1, 1),
    Sketcher.Constraint("Coincident", 1, 2, 2, 1),
    Sketcher.Constraint("Coincident", 2, 2, 3, 1),
    Sketcher.Constraint("Coincident", 3, 2, 0, 1),
    Sketcher.Constraint("Coincident", 4, 2, 5, 1),
    Sketcher.Constraint("Coincident", 5, 2, 6, 1),
    Sketcher.Constraint("Coincident", 6, 2, 7, 1),
    Sketcher.Constraint("Coincident", 7, 2, 4, 1),
    Sketcher.Constraint("Vertical", 0),
    Sketcher.Constraint("Horizontal", 1),
    Sketcher.Constraint("Vertical", 2),
    Sketcher.Constraint("Horizontal", 3),
    Sketcher.Constraint("Horizontal", 4),
    Sketcher.Constraint("Vertical", 5),
    Sketcher.Constraint("Horizontal", 6),
    Sketcher.Constraint("Vertical", 7),
    Sketcher.Constraint("Horizontal", 3, 2, 4, 2),
    Sketcher.Constraint("Horizontal", 1, 2, 5, 2),
    Sketcher.Constraint("Equal", 3, 4),
    Sketcher.Constraint("DistanceX", 1, 2, 1, 1, 4.7),
    Sketcher.Constraint("DistanceY", 0, 1, 0, 2, 22.7),
    Sketcher.Constraint("DistanceY", -1, 1, 0, 2, 57.3),
    Sketcher.Constraint("DistanceX", 4, 2, 2, 2, 22.8),
    Sketcher.Constraint("DistanceX", -1, 1, 0, 2, 22.85),
])
pad13 = body.newObject("PartDesign::Pad", "Pad012")
pad13.Profile = sketch14
pad13.Length = 12.3

sketch15 = body.newObject("Sketcher::SketchObject", "Sketch014")
sketch15.AttachmentSupport = (doc.getObject("YZ_Plane"), [""])
sketch15.MapMode = "FlatFace"
sketch15.AttachmentOffset = App.Placement(Vector(0, 0, 31.75), App.Rotation())
sketch15.addGeometry([
    Part.LineSegment(Vector(35, 57.15, 0), Vector(50.3, 69.45, 0)),
    Part.LineSegment(Vector(50.3, 69.45, 0), Vector(0, 69.45, 0)),
    Part.LineSegment(Vector(0, 69.45, 0), Vector(0, 57.15, 0)),
    Part.LineSegment(Vector(0, 57.15, 0), Vector(35, 57.15, 0)),
], False)
sketch15.addConstraint([
    Sketcher.Constraint("Coincident", 0, 2, 1, 1),
    Sketcher.Constraint("Coincident", 1, 2, 2, 1),
    Sketcher.Constraint("Coincident", 2, 2, 3, 1),
    Sketcher.Constraint("Coincident", 3, 2, 0, 1),
    Sketcher.Constraint("Horizontal", 1),
    Sketcher.Constraint("Vertical", 2),
    Sketcher.Constraint("Horizontal", 3),
    Sketcher.Constraint("PointOnObject", 1, 2, -2),
    Sketcher.Constraint("DistanceX", 3, 1, 3, 2, 35.0),
    Sketcher.Constraint("DistanceX", 1, 2, 1, 1, 50.3),
    Sketcher.Constraint("DistanceY", 2, 2, 2, 1, 12.3),
    Sketcher.Constraint("DistanceY", -1, 1, 0, 2, 69.45),
])
pocket1 = body.newObject("PartDesign::Pocket", "Pocket")
pocket1.Profile = sketch15
pocket1.Type = "ThroughAll"

doc.recompute()
